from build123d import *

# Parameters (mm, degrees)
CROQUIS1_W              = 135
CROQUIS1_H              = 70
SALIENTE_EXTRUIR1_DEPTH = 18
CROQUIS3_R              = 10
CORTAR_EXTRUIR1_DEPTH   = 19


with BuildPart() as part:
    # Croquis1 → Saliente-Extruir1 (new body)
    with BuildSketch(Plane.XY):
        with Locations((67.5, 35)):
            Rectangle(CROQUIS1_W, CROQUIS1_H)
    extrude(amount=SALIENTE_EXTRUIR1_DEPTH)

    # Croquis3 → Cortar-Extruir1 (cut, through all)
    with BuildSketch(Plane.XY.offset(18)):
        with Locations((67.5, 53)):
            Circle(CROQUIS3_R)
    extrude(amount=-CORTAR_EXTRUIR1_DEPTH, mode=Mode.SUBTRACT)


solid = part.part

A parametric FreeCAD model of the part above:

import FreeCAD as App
import Part
import Sketcher

V = App.Vector

doc = App.newDocument("Part")
params = doc.addObject("Spreadsheet::Sheet", "Params")
for row, (alias, value) in enumerate([
    ("sketch1_width", "135 mm"),
    ("sketch1_height", "70 mm"),
    ("pad1_length", "18 mm"),
    ("sketch2_diameter", "20 mm"),
], start=1):
    params.set(f"A{row}", alias)
    params.set(f"B{row}", "=" + value)
    params.setAlias(f"B{row}", alias)

body = doc.addObject("PartDesign::Body", "Body")

# Sketch on XY plane
sketch1 = body.newObject("Sketcher::SketchObject", "Sketch")
sketch1.AttachmentSupport = (doc.getObject("XY_Plane"), [""])
sketch1.MapMode = "FlatFace"
sketch1.addGeometry([
    Part.LineSegment(V(0, 70, 0), V(0, 0, 0)),
    Part.LineSegment(V(0, 0, 0), V(135, 0, 0)),
    Part.LineSegment(V(135, 0, 0), V(135, 70, 0)),
    Part.LineSegment(V(135, 70, 0), V(0, 70, 0)),
], False)
sketch1.addConstraint([
    Sketcher.Constraint("Coincident", 0, 2, 1, 1),
    Sketcher.Constraint("Coincident", 1, 2, 2, 1),
    Sketcher.Constraint("Coincident", 2, 2, 3, 1),
    Sketcher.Constraint("Coincident", 3, 2, 0, 1),
    Sketcher.Constraint("Vertical", 0),
    Sketcher.Constraint("Horizontal", 1),
    Sketcher.Constraint("Vertical", 2),
    Sketcher.Constraint("Horizontal", 3),
    Sketcher.Constraint("Coincident", 0, 2, -1, 1),
    Sketcher.Constraint("DistanceX", 1, 1, 1, 2, 135.0),
    Sketcher.Constraint("DistanceY", 0, 2, 0, 1, 70.0),
])
sketch1.setExpression("Constraints[9]", "Params.sketch1_width")
sketch1.setExpression("Constraints[10]", "Params.sketch1_height")
pad1 = body.newObject("PartDesign::Pad", "Pad")
pad1.Profile = sketch1
pad1.setExpression("Length", "Params.pad1_length")

# Sketch on XY plane
sketch2 = body.newObject("Sketcher::SketchObject", "Sketch001")
sketch2.AttachmentSupport = (doc.getObject("XY_Plane"), [""])
sketch2.MapMode = "FlatFace"
sketch2.AttachmentOffset = App.Placement(V(0, 0, 18), App.Rotation())
sketch2.addGeometry(Part.Circle(V(68, 53, 0), V(0, 0, 1), 10), False)
sketch2.addConstraint([
    Sketcher.Constraint("Diameter", 0, 20.0),
    Sketcher.Constraint("DistanceY", -1, 1, 0, 3, 53.0),
    Sketcher.Constraint("DistanceX", -1, 1, 0, 3, 67.5),
])
sketch2.setExpression("Constraints[0]", "Params.sketch2_diameter")
pocket1 = body.newObject("PartDesign::Pocket", "Pocket")
pocket1.Profile = sketch2
pocket1.Type = "ThroughAll"

doc.recompute()
